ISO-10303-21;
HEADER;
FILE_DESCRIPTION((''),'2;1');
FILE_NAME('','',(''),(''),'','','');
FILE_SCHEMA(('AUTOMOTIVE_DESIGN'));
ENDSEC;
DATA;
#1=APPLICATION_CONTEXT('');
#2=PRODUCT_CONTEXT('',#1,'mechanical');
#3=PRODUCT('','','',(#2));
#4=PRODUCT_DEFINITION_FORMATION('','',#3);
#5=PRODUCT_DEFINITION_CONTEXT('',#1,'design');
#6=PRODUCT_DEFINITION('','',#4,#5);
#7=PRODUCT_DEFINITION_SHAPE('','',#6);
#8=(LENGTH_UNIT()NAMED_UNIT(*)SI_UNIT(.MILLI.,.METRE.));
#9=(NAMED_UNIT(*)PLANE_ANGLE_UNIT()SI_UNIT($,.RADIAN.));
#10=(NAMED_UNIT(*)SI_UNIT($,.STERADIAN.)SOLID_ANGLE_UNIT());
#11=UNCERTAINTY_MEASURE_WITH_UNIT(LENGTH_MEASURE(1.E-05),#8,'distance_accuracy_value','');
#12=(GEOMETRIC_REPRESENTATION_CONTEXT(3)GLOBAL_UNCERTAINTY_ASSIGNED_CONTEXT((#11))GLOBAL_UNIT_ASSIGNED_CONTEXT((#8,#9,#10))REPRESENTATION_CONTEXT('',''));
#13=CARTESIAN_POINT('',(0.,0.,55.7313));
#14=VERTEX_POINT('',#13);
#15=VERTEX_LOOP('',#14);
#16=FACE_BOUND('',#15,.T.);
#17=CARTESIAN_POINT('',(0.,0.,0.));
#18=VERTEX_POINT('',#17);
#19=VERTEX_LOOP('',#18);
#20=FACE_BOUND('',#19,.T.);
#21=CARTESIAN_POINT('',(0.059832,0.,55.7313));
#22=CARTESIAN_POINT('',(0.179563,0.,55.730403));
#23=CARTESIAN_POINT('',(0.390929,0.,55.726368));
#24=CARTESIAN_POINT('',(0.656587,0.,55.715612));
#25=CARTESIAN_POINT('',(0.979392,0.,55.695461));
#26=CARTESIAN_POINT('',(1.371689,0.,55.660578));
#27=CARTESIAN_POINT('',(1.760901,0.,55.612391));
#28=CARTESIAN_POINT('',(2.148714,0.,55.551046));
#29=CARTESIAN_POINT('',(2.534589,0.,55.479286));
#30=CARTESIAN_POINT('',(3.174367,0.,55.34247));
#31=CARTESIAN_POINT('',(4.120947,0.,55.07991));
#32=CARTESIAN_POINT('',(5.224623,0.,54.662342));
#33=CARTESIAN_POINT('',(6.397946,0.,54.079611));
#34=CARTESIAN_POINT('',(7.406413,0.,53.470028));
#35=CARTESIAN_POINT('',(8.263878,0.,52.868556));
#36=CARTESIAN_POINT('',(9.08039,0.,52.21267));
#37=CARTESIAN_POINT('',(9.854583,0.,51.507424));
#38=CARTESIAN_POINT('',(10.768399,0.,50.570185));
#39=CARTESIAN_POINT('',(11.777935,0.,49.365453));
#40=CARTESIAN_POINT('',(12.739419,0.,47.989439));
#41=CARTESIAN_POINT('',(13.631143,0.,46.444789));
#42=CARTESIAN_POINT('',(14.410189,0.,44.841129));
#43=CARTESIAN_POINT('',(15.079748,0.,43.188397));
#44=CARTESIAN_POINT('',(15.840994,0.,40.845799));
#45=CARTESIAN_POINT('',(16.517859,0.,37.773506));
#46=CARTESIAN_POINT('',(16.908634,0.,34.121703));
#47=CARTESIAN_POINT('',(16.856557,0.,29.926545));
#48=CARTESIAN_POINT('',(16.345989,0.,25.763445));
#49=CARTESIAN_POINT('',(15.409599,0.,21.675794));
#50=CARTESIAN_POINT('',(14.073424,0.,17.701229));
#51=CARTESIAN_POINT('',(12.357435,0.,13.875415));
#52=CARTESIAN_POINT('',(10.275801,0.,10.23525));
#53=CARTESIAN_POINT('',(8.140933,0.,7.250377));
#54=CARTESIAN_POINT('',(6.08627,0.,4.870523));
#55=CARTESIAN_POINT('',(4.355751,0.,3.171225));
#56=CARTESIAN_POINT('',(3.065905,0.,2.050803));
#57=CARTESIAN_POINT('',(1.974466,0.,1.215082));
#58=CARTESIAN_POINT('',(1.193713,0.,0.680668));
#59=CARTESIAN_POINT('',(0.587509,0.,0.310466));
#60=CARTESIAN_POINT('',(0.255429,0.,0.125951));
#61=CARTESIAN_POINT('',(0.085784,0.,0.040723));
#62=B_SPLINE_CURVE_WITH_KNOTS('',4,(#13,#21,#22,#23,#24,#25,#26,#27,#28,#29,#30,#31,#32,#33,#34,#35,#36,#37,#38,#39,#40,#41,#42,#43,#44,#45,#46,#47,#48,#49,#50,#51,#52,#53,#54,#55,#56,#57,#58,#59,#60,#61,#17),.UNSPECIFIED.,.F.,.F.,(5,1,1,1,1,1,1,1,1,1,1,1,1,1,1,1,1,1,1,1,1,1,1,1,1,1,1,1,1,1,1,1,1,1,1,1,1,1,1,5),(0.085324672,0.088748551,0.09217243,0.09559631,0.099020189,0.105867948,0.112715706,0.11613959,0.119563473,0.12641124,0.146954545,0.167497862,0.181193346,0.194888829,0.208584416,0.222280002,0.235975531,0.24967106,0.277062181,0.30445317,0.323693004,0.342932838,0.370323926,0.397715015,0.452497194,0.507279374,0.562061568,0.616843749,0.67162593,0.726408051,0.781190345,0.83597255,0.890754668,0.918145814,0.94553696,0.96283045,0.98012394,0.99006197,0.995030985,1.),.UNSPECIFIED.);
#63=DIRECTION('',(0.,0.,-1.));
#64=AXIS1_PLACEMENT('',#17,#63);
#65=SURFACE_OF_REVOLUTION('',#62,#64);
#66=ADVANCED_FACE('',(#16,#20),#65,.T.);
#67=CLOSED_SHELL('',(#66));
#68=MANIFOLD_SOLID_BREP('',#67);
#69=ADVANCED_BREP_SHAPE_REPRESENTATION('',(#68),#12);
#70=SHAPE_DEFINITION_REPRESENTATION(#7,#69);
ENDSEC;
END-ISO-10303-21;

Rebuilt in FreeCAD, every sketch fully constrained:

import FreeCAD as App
import Part
import Sketcher

V = App.Vector

doc = App.newDocument("Part")
body = doc.addObject("PartDesign::Body", "Body")

# Sketch on XZ plane
sketch1 = body.newObject("Sketcher::SketchObject", "Sketch")
sketch1.AttachmentSupport = (doc.getObject("XZ_Plane"), [""])
sketch1.MapMode = "FlatFace"
sketch1.addGeometry(Part.LineSegment(V(0, 0, 0), V(0, 55.7313, 0)), False)
sketch1.addGeometry(Part.BSplineCurve([V(0, 55.7313, 0), V(0.059832, 55.7313, 0), V(0.179563, 55.730403, 0), V(0.390929, 55.726368, 0), V(0.656587, 55.715612, 0), V(0.979392, 55.695461, 0), V(1.371689, 55.660578, 0), V(1.760901, 55.612391, 0), V(2.148714, 55.551046, 0), V(2.534589, 55.479286, 0), V(3.174367, 55.34247, 0), V(4.120947, 55.07991, 0), V(5.224623, 54.662342, 0), V(6.397946, 54.079611, 0), V(7.406413, 53.470028, 0), V(8.263878, 52.868556, 0), V(9.08039, 52.21267, 0), V(9.854583, 51.507424, 0), V(10.768399, 50.570185, 0), V(11.777935, 49.365453, 0), V(12.739419, 47.989439, 0), V(13.631143, 46.444789, 0), V(14.410189, 44.841129, 0), V(15.079748, 43.188397, 0), V(15.840994, 40.845799, 0), V(16.517859, 37.773506, 0), V(16.908634, 34.121703, 0), V(16.856557, 29.926545, 0), V(16.345989, 25.763445, 0), V(15.409599, 21.675794, 0), V(14.073424, 17.701229, 0), V(12.357435, 13.875415, 0), V(10.275801, 10.23525, 0), V(8.140933, 7.250377, 0), V(6.08627, 4.870523, 0), V(4.355751, 3.171225, 0), V(3.065905, 2.050803, 0), V(1.974466, 1.215082, 0), V(1.193713, 0.680668, 0), V(0.587509, 0.310466, 0), V(0.255429, 0.125951, 0), V(0.085784, 0.040723, 0), V(0, 0, 0)], [5, 1, 1, 1, 1, 1, 1, 1, 1, 1, 1, 1, 1, 1, 1, 1, 1, 1, 1, 1, 1, 1, 1, 1, 1, 1, 1, 1, 1, 1, 1, 1, 1, 1, 1, 1, 1, 1, 1, 5], [0.085324672, 0.088748551, 0.09217243, 0.09559631, 0.099020189, 0.105867948, 0.112715706, 0.11613959, 0.119563473, 0.12641124, 0.146954545, 0.167497862, 0.181193346, 0.194888829, 0.208584416, 0.222280002, 0.235975531, 0.24967106, 0.277062181, 0.30445317, 0.323693004, 0.342932838, 0.370323926, 0.397715015, 0.452497194, 0.507279374, 0.562061568, 0.616843749, 0.67162593, 0.726408051, 0.781190345, 0.83597255, 0.890754668, 0.918145814, 0.94553696, 0.96283045, 0.98012394, 0.99006197, 0.995030985, 1], False, 4, [1, 1, 1, 1, 1, 1, 1, 1, 1, 1, 1, 1, 1, 1, 1, 1, 1, 1, 1, 1, 1, 1, 1, 1, 1, 1, 1, 1, 1, 1, 1, 1, 1, 1, 1, 1, 1, 1, 1, 1, 1, 1, 1], False), False)
sketch1.addConstraint(Sketcher.Constraint("Block", 1))
sketch1.addConstraint(Sketcher.Constraint("Coincident", 0, 1, 1, 2))
sketch1.addConstraint(Sketcher.Constraint("Coincident", 1, 1, 0, 2))
revolution = body.newObject("PartDesign::Revolution", "Revolution")
revolution.Profile = sketch1
revolution.ReferenceAxis = (sketch1, ["V_Axis"])
revolution.Angle = 360

doc.recompute()
